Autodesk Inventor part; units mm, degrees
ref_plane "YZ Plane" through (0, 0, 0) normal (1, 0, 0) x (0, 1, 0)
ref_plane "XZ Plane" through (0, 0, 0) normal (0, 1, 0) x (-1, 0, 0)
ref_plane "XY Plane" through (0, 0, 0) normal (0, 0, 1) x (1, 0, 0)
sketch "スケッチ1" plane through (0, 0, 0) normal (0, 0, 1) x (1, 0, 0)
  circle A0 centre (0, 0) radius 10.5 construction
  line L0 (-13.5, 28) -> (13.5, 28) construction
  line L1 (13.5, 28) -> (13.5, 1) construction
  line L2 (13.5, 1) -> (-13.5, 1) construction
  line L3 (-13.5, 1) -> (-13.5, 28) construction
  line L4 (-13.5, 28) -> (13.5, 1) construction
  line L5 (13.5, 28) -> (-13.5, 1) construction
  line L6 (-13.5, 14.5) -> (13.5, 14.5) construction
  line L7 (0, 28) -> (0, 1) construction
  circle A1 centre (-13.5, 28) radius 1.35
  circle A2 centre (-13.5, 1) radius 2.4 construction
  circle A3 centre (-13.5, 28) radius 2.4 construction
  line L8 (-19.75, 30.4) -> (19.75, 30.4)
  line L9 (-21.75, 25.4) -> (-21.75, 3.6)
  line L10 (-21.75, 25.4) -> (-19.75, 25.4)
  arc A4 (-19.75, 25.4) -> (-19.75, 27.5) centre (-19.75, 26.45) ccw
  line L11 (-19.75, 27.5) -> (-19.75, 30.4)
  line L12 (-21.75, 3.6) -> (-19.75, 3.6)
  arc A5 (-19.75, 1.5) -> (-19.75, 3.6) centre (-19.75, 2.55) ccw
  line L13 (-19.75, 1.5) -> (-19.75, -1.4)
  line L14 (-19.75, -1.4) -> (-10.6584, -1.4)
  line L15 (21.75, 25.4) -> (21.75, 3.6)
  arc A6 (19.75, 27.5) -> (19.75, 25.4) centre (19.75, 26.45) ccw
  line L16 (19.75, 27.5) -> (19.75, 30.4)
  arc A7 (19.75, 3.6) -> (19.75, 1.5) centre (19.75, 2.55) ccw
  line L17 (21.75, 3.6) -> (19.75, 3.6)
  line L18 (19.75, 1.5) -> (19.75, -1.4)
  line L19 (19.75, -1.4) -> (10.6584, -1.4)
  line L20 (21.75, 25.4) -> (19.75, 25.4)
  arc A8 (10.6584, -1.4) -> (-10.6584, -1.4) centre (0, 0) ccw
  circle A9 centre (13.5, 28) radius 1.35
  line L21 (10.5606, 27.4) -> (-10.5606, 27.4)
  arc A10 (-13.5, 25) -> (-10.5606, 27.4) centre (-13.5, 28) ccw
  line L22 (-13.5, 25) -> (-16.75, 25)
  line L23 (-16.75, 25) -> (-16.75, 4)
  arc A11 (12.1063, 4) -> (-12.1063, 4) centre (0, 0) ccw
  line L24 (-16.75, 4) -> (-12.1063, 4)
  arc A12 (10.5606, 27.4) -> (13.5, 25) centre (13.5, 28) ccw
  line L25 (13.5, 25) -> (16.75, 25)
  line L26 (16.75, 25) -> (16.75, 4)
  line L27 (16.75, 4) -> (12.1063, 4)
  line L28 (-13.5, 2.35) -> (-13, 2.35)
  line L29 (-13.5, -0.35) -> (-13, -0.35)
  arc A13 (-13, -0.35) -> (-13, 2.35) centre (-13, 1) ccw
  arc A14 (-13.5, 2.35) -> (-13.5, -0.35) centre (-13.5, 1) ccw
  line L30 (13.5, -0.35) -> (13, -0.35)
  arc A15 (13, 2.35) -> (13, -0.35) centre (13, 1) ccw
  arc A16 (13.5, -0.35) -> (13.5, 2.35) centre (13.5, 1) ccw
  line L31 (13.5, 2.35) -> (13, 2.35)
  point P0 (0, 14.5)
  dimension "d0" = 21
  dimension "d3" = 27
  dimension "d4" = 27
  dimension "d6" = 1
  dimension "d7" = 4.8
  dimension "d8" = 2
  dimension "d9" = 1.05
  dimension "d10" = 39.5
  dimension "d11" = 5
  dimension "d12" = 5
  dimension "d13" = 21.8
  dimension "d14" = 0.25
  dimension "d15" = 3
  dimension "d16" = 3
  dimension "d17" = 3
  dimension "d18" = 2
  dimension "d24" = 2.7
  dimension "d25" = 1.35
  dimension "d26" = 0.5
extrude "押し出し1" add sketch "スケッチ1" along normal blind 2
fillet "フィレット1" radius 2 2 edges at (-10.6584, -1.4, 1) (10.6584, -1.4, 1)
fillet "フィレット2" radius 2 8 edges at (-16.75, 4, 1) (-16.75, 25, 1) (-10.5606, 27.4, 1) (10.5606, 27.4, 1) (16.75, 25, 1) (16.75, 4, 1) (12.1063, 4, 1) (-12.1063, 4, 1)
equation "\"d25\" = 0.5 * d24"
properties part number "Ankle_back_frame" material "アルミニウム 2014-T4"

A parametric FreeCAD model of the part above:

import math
import FreeCAD as App
import Part
import Sketcher
from FreeCAD import Vector
Q = App.Units.Quantity


def edges_at(feature, points):
    """Names of the edges that pass closest to the given points."""
    edges = feature.Shape.Edges
    near = lambda p: min(range(len(edges)), key=lambda i: edges[i].distToShape(Part.Vertex(*p))[0])
    return sorted({f"Edge{near(p) + 1}" for p in points})

doc = App.newDocument("Part")
params = doc.addObject("Spreadsheet::Sheet", "Params")
for row, (alias, value) in enumerate([
    ("sketch1_radius", "3 mm"),
    ("sketch1_diameter", "2.7 mm"),
    ("sketch1_width", "2 mm"),
    ("sketch1_height", "21 mm"),
    ("sketch1_radius2", "1.05 mm"),
    ("pad1_length", "2 mm"),
    ("fillet_radius", "2 mm"),
    ("fillet2_radius", "2 mm"),
], start=1):
    params.set(f"A{row}", alias)
    params.set(f"B{row}", "=" + value)
    params.setAlias(f"B{row}", alias)

body = doc.addObject("PartDesign::Body", "Body")

sketch1 = doc.addObject("Sketcher::SketchObject", "Sketch")
body.addObject(sketch1)
sketch1.AttachmentSupport = (doc.XY_Plane, [""])
sketch1.MapMode = "FlatFace"
sketch1.addGeometry(Part.LineSegment(Vector(19.8, 30.4, 0), Vector(-19.8, 30.4, 0)), False)
sketch1.addGeometry(Part.LineSegment(Vector(-19.8, 30.4, 0), Vector(-19.8, 27.5, 0)), False)
sketch1.addGeometry(Part.ArcOfCircle(Part.Circle(Vector(-19.8, 26.4, 0), Vector(0, 0, 1), 1.1), math.radians(-90), math.radians(90)), False)
sketch1.addGeometry(Part.LineSegment(Vector(-19.8, 25.4, 0), Vector(-21.8, 25.4, 0)), False)
sketch1.addGeometry(Part.LineSegment(Vector(-21.8, 25.4, 0), Vector(-21.8, 3.6, 0)), False)
sketch1.addGeometry(Part.LineSegment(Vector(-21.8, 3.6, 0), Vector(-19.8, 3.6, 0)), False)
sketch1.addGeometry(Part.ArcOfCircle(Part.Circle(Vector(-19.8, 2.5, 0), Vector(0, 0, 1), 1), math.radians(-90), math.radians(90)), False)
sketch1.addGeometry(Part.LineSegment(Vector(-19.8, 1.5, 0), Vector(-19.8, -1.4, 0)), False)
sketch1.addGeometry(Part.LineSegment(Vector(-19.8, -1.4, 0), Vector(-10.7, -1.4, 0)), False)
sketch1.addGeometry(Part.ArcOfCircle(Part.Circle(Vector(0, 0, 0), Vector(0, 0, 1), 10.7), math.radians(-7), math.radians(187)), False)
sketch1.addGeometry(Part.LineSegment(Vector(10.7, -1.4, 0), Vector(19.8, -1.4, 0)), False)
sketch1.addGeometry(Part.LineSegment(Vector(19.8, -1.4, 0), Vector(19.8, 1.5, 0)), False)
sketch1.addGeometry(Part.ArcOfCircle(Part.Circle(Vector(19.8, 2.5, 0), Vector(0, 0, 1), 1.1), math.radians(90), math.radians(270)), False)
sketch1.addGeometry(Part.LineSegment(Vector(19.8, 3.6, 0), Vector(21.8, 3.6, 0)), False)
sketch1.addGeometry(Part.LineSegment(Vector(21.8, 3.6, 0), Vector(21.8, 25.4, 0)), False)
sketch1.addGeometry(Part.LineSegment(Vector(21.8, 25.4, 0), Vector(19.8, 25.4, 0)), False)
sketch1.addGeometry(Part.ArcOfCircle(Part.Circle(Vector(19.8, 26.4, 0), Vector(0, 0, 1), 1.1), math.radians(90), math.radians(270)), False)
sketch1.addGeometry(Part.LineSegment(Vector(19.8, 27.5, 0), Vector(19.8, 30.4, 0)), False)
sketch1.addGeometry(Part.ArcOfCircle(Part.Circle(Vector(-13.5, 1, 0), Vector(0, 0, 1), 1.4), math.radians(90), math.radians(270)), False)
sketch1.addGeometry(Part.LineSegment(Vector(-13.5, 2.4, 0), Vector(-13, 2.4, 0)), False)
sketch1.addGeometry(Part.ArcOfCircle(Part.Circle(Vector(-13, 1, 0), Vector(0, 0, 1), 1.4), math.radians(-90), math.radians(90)), False)
sketch1.addGeometry(Part.LineSegment(Vector(-13, -0.3, 0), Vector(-13.5, -0.3, 0)), False)
sketch1.addGeometry(Part.ArcOfCircle(Part.Circle(Vector(13.5, 1, 0), Vector(0, 0, 1), 1.4), math.radians(-90), math.radians(90)), False)
sketch1.addGeometry(Part.LineSegment(Vector(13.5, -0.3, 0), Vector(13, -0.3, 0)), False)
sketch1.addGeometry(Part.ArcOfCircle(Part.Circle(Vector(13, 1, 0), Vector(0, 0, 1), 1.4), math.radians(90), math.radians(270)), False)
sketch1.addGeometry(Part.LineSegment(Vector(13, 2.4, 0), Vector(13.5, 2.4, 0)), False)
sketch1.addGeometry(Part.Circle(Vector(-13.5, 28, 0), Vector(0, 0, 1), 1.4), False)
sketch1.addGeometry(Part.LineSegment(Vector(-10.6, 27.4, 0), Vector(10.6, 27.4, 0)), False)
sketch1.addGeometry(Part.ArcOfCircle(Part.Circle(Vector(13.5, 28, 0), Vector(0, 0, 1), 3), math.radians(-168), math.radians(-90)), False)
sketch1.addGeometry(Part.LineSegment(Vector(13.5, 25, 0), Vector(16.8, 25, 0)), False)
sketch1.addGeometry(Part.LineSegment(Vector(16.8, 25, 0), Vector(16.8, 4, 0)), False)
sketch1.addGeometry(Part.LineSegment(Vector(16.8, 4, 0), Vector(12.1, 4, 0)), False)
sketch1.addGeometry(Part.ArcOfCircle(Part.Circle(Vector(0, 0, 0), Vector(0, 0, 1), 12.7), math.radians(18), math.radians(162)), False)
sketch1.addGeometry(Part.LineSegment(Vector(-12.1, 4, 0), Vector(-16.8, 4, 0)), False)
sketch1.addGeometry(Part.LineSegment(Vector(-16.8, 4, 0), Vector(-16.8, 25, 0)), False)
sketch1.addGeometry(Part.LineSegment(Vector(-16.8, 25, 0), Vector(-13.5, 25, 0)), False)
sketch1.addGeometry(Part.ArcOfCircle(Part.Circle(Vector(-13.5, 28, 0), Vector(0, 0, 1), 3), math.radians(-90), math.radians(-12)), False)
sketch1.addGeometry(Part.Circle(Vector(13.5, 28, 0), Vector(0, 0, 1), 1.4), False)
sketch1.addConstraint(Sketcher.Constraint("Coincident", 0, 2, 1, 1))
sketch1.addConstraint(Sketcher.Constraint("Coincident", 1, 2, 2, 2))
sketch1.addConstraint(Sketcher.Constraint("Tangent", 2, 1, 3, 1))
sketch1.addConstraint(Sketcher.Constraint("Coincident", 3, 2, 4, 1))
sketch1.addConstraint(Sketcher.Constraint("Coincident", 4, 2, 5, 1))
sketch1.addConstraint(Sketcher.Constraint("Tangent", 5, 2, 6, 2))
sketch1.addConstraint(Sketcher.Constraint("Coincident", 6, 1, 7, 1))
sketch1.addConstraint(Sketcher.Constraint("Coincident", 7, 2, 8, 1))
sketch1.addConstraint(Sketcher.Constraint("Coincident", 8, 2, 9, 2))
sketch1.addConstraint(Sketcher.Constraint("Coincident", 9, 1, 10, 1))
sketch1.addConstraint(Sketcher.Constraint("Coincident", 10, 2, 11, 1))
sketch1.addConstraint(Sketcher.Constraint("Coincident", 11, 2, 12, 2))
sketch1.addConstraint(Sketcher.Constraint("Tangent", 12, 1, 13, 1))
sketch1.addConstraint(Sketcher.Constraint("Coincident", 13, 2, 14, 1))
sketch1.addConstraint(Sketcher.Constraint("Coincident", 14, 2, 15, 1))
sketch1.addConstraint(Sketcher.Constraint("Tangent", 15, 2, 16, 2))
sketch1.addConstraint(Sketcher.Constraint("Coincident", 16, 1, 17, 1))
sketch1.addConstraint(Sketcher.Constraint("Coincident", 17, 2, 0, 1))
sketch1.addConstraint(Sketcher.Constraint("Tangent", 18, 1, 19, 1))
sketch1.addConstraint(Sketcher.Constraint("Tangent", 19, 2, 20, 2))
sketch1.addConstraint(Sketcher.Constraint("Tangent", 20, 1, 21, 1))
sketch1.addConstraint(Sketcher.Constraint("Tangent", 21, 2, 18, 2))
sketch1.addConstraint(Sketcher.Constraint("Tangent", 22, 1, 23, 1))
sketch1.addConstraint(Sketcher.Constraint("Tangent", 23, 2, 24, 2))
sketch1.addConstraint(Sketcher.Constraint("Tangent", 24, 1, 25, 1))
sketch1.addConstraint(Sketcher.Constraint("Tangent", 25, 2, 22, 2))
sketch1.addConstraint(Sketcher.Constraint("Coincident", 27, 2, 28, 1))
sketch1.addConstraint(Sketcher.Constraint("Tangent", 28, 2, 29, 1))
sketch1.addConstraint(Sketcher.Constraint("Coincident", 29, 2, 30, 1))
sketch1.addConstraint(Sketcher.Constraint("Coincident", 30, 2, 31, 1))
sketch1.addConstraint(Sketcher.Constraint("Coincident", 31, 2, 32, 1))
sketch1.addConstraint(Sketcher.Constraint("Coincident", 32, 2, 33, 1))
sketch1.addConstraint(Sketcher.Constraint("Coincident", 33, 2, 34, 1))
sketch1.addConstraint(Sketcher.Constraint("Coincident", 34, 2, 35, 1))
sketch1.addConstraint(Sketcher.Constraint("Tangent", 35, 2, 36, 1))
sketch1.addConstraint(Sketcher.Constraint("Coincident", 36, 2, 27, 1))
sketch1.addConstraint(Sketcher.Constraint("Horizontal", 0))
sketch1.addConstraint(Sketcher.Constraint("Vertical", 1))
sketch1.addConstraint(Sketcher.Constraint("Horizontal", 3))
sketch1.addConstraint(Sketcher.Constraint("Vertical", 4))
sketch1.addConstraint(Sketcher.Constraint("Horizontal", 5))
sketch1.addConstraint(Sketcher.Constraint("Vertical", 7))
sketch1.addConstraint(Sketcher.Constraint("Horizontal", 8))
sketch1.addConstraint(Sketcher.Constraint("Horizontal", 10))
sketch1.addConstraint(Sketcher.Constraint("Vertical", 11))
sketch1.addConstraint(Sketcher.Constraint("Horizontal", 13))
sketch1.addConstraint(Sketcher.Constraint("Vertical", 14))
sketch1.addConstraint(Sketcher.Constraint("Horizontal", 15))
sketch1.addConstraint(Sketcher.Constraint("Vertical", 17))
sketch1.addConstraint(Sketcher.Constraint("Horizontal", 19))
sketch1.addConstraint(Sketcher.Constraint("Horizontal", 21))
sketch1.addConstraint(Sketcher.Constraint("Horizontal", 23))
sketch1.addConstraint(Sketcher.Constraint("Horizontal", 25))
sketch1.addConstraint(Sketcher.Constraint("Horizontal", 27))
sketch1.addConstraint(Sketcher.Constraint("Horizontal", 29))
sketch1.addConstraint(Sketcher.Constraint("Vertical", 30))
sketch1.addConstraint(Sketcher.Constraint("Horizontal", 31))
sketch1.addConstraint(Sketcher.Constraint("Horizontal", 33))
sketch1.addConstraint(Sketcher.Constraint("Vertical", 34))
sketch1.addConstraint(Sketcher.Constraint("Horizontal", 35))
sketch1.addConstraint(Sketcher.Constraint("Coincident", 9, 3, -1, 1))
sketch1.addConstraint(Sketcher.Constraint("Coincident", 32, 3, -1, 1))
sketch1.addConstraint(Sketcher.Constraint("Coincident", 36, 3, 26, 3))
sketch1.addConstraint(Sketcher.Constraint("Coincident", 37, 3, 28, 3))
sketch1.addConstraint(Sketcher.Constraint("Equal", 2, 6))
sketch1.addConstraint(Sketcher.Constraint("Equal", 6, 12))
sketch1.addConstraint(Sketcher.Constraint("Equal", 12, 16))
sketch1.addConstraint(Sketcher.Constraint("Equal", 20, 22))
sketch1.addConstraint(Sketcher.Constraint("Equal", 24, 26))
sketch1.addConstraint(Sketcher.Constraint("Equal", 28, 36))
sketch1.addConstraint(Sketcher.Constraint("Equal", 26, 37))
sketch1.addConstraint(Sketcher.Constraint("Symmetric", 6, 3, 12, 3, -2))
sketch1.addConstraint(Sketcher.Constraint("Symmetric", 2, 3, 16, 3, -2))
sketch1.addConstraint(Sketcher.Constraint("Symmetric", 18, 3, 22, 3, -2))
sketch1.addConstraint(Sketcher.Constraint("Symmetric", 26, 3, 28, 3, -2))
sketch1.addConstraint(Sketcher.Constraint("Symmetric", 7, 2, 10, 2, -2))
sketch1.addConstraint(Sketcher.Constraint("Symmetric", 30, 2, 33, 2, -2))
sketch1.addConstraint(Sketcher.Constraint("Vertical", 2, 3, 6, 3))
sketch1.addConstraint(Sketcher.Constraint("Vertical", 18, 3, 26, 3))
sketch1.addConstraint(Sketcher.Constraint("Vertical", 6, 3, 0, 2))
sketch1.addConstraint(Sketcher.Constraint("Vertical", 5, 2, 6, 1))
sketch1.addConstraint(Sketcher.Constraint("Vertical", 15, 2, 16, 1))
sketch1.addConstraint(Sketcher.Constraint("Equal", 5, 13))
sketch1.addConstraint(Sketcher.Constraint("Equal", 21, 23))
sketch1.addConstraint(Sketcher.Constraint("Equal", 1, 7))
sketch1.addConstraint(Sketcher.Constraint("Radius", 28, Q("3 mm")))
sketch1.addConstraint(Sketcher.Constraint("Diameter", 26, Q("2.7 mm")))
sketch1.addConstraint(Sketcher.Constraint("DistanceX", 3, 2, 3, 1, Q("2 mm")))
sketch1.addConstraint(Sketcher.Constraint("DistanceY", 30, 2, 30, 1, Q("21 mm")))
sketch1.addConstraint(Sketcher.Constraint("Radius", 2, Q("1.05 mm")))
sketch1.addConstraint(Sketcher.Constraint("DistanceX", 0, 2, 0, 1, Q("39.5 mm")))
sketch1.addConstraint(Sketcher.Constraint("DistanceX", 19, 1, 19, 2, Q("0.5 mm")))
sketch1.addConstraint(Sketcher.Constraint("DistanceY", 4, 2, 4, 1, Q("21.8 mm")))
sketch1.addConstraint(Sketcher.Constraint("DistanceY", -1, 1, 18, 3, Q("1 mm")))
sketch1.addConstraint(Sketcher.Constraint("DistanceX", 18, 3, 22, 3, Q("27 mm")))
sketch1.addConstraint(Sketcher.Constraint("DistanceY", 18, 3, 26, 3, Q("27 mm")))
sketch1.addConstraint(Sketcher.Constraint("DistanceY", 2, 1, 0, 2, Q("5 mm")))
sketch1.addConstraint(Sketcher.Constraint("DistanceY", 15, 2, 27, 2, Q("2 mm")))
sketch1.addConstraint(Sketcher.Constraint("DistanceX", 29, 2, 15, 2, Q("3 mm")))
sketch1.addConstraint(Sketcher.Constraint("DistanceY", 1, 2, 26, 3, Q("0.5 mm")))
sketch1.addConstraint(Sketcher.Constraint("Radius", 9, Q("10.75 mm")))
sketch1.addConstraint(Sketcher.Constraint("Radius", 32, Q("12.75 mm")))
sketch1.setExpression("Constraints[85]", "Params.sketch1_radius")
sketch1.setExpression("Constraints[86]", "Params.sketch1_diameter")
sketch1.setExpression("Constraints[87]", "Params.sketch1_width")
sketch1.setExpression("Constraints[88]", "Params.sketch1_height")
sketch1.setExpression("Constraints[89]", "Params.sketch1_radius2")
pad1 = doc.addObject("PartDesign::Pad", "Pad")
body.addObject(pad1)
pad1.Profile = sketch1
pad1.setExpression("Length", "Params.pad1_length")
doc.recompute()

fillet = doc.addObject("PartDesign::Fillet", "Fillet")
body.addObject(fillet)
fillet.Base = (pad1, edges_at(pad1, [(-10.658, -1.4, 1), (10.658, -1.4, 1)]))
fillet.setExpression("Radius", "Params.fillet_radius")
doc.recompute()

fillet2 = doc.addObject("PartDesign::Fillet", "Fillet001")
body.addObject(fillet2)
fillet2.Base = (fillet, edges_at(fillet, [
    (-16.75, 4, 1),
    (-16.75, 25, 1),
    (-10.561, 27.4, 1),
    (10.561, 27.4, 1),
    (16.75, 25, 1),
    (16.75, 4, 1),
    (12.106, 4, 1),
    (-12.106, 4, 1),
]))
fillet2.setExpression("Radius", "Params.fillet2_radius")

doc.recompute()
